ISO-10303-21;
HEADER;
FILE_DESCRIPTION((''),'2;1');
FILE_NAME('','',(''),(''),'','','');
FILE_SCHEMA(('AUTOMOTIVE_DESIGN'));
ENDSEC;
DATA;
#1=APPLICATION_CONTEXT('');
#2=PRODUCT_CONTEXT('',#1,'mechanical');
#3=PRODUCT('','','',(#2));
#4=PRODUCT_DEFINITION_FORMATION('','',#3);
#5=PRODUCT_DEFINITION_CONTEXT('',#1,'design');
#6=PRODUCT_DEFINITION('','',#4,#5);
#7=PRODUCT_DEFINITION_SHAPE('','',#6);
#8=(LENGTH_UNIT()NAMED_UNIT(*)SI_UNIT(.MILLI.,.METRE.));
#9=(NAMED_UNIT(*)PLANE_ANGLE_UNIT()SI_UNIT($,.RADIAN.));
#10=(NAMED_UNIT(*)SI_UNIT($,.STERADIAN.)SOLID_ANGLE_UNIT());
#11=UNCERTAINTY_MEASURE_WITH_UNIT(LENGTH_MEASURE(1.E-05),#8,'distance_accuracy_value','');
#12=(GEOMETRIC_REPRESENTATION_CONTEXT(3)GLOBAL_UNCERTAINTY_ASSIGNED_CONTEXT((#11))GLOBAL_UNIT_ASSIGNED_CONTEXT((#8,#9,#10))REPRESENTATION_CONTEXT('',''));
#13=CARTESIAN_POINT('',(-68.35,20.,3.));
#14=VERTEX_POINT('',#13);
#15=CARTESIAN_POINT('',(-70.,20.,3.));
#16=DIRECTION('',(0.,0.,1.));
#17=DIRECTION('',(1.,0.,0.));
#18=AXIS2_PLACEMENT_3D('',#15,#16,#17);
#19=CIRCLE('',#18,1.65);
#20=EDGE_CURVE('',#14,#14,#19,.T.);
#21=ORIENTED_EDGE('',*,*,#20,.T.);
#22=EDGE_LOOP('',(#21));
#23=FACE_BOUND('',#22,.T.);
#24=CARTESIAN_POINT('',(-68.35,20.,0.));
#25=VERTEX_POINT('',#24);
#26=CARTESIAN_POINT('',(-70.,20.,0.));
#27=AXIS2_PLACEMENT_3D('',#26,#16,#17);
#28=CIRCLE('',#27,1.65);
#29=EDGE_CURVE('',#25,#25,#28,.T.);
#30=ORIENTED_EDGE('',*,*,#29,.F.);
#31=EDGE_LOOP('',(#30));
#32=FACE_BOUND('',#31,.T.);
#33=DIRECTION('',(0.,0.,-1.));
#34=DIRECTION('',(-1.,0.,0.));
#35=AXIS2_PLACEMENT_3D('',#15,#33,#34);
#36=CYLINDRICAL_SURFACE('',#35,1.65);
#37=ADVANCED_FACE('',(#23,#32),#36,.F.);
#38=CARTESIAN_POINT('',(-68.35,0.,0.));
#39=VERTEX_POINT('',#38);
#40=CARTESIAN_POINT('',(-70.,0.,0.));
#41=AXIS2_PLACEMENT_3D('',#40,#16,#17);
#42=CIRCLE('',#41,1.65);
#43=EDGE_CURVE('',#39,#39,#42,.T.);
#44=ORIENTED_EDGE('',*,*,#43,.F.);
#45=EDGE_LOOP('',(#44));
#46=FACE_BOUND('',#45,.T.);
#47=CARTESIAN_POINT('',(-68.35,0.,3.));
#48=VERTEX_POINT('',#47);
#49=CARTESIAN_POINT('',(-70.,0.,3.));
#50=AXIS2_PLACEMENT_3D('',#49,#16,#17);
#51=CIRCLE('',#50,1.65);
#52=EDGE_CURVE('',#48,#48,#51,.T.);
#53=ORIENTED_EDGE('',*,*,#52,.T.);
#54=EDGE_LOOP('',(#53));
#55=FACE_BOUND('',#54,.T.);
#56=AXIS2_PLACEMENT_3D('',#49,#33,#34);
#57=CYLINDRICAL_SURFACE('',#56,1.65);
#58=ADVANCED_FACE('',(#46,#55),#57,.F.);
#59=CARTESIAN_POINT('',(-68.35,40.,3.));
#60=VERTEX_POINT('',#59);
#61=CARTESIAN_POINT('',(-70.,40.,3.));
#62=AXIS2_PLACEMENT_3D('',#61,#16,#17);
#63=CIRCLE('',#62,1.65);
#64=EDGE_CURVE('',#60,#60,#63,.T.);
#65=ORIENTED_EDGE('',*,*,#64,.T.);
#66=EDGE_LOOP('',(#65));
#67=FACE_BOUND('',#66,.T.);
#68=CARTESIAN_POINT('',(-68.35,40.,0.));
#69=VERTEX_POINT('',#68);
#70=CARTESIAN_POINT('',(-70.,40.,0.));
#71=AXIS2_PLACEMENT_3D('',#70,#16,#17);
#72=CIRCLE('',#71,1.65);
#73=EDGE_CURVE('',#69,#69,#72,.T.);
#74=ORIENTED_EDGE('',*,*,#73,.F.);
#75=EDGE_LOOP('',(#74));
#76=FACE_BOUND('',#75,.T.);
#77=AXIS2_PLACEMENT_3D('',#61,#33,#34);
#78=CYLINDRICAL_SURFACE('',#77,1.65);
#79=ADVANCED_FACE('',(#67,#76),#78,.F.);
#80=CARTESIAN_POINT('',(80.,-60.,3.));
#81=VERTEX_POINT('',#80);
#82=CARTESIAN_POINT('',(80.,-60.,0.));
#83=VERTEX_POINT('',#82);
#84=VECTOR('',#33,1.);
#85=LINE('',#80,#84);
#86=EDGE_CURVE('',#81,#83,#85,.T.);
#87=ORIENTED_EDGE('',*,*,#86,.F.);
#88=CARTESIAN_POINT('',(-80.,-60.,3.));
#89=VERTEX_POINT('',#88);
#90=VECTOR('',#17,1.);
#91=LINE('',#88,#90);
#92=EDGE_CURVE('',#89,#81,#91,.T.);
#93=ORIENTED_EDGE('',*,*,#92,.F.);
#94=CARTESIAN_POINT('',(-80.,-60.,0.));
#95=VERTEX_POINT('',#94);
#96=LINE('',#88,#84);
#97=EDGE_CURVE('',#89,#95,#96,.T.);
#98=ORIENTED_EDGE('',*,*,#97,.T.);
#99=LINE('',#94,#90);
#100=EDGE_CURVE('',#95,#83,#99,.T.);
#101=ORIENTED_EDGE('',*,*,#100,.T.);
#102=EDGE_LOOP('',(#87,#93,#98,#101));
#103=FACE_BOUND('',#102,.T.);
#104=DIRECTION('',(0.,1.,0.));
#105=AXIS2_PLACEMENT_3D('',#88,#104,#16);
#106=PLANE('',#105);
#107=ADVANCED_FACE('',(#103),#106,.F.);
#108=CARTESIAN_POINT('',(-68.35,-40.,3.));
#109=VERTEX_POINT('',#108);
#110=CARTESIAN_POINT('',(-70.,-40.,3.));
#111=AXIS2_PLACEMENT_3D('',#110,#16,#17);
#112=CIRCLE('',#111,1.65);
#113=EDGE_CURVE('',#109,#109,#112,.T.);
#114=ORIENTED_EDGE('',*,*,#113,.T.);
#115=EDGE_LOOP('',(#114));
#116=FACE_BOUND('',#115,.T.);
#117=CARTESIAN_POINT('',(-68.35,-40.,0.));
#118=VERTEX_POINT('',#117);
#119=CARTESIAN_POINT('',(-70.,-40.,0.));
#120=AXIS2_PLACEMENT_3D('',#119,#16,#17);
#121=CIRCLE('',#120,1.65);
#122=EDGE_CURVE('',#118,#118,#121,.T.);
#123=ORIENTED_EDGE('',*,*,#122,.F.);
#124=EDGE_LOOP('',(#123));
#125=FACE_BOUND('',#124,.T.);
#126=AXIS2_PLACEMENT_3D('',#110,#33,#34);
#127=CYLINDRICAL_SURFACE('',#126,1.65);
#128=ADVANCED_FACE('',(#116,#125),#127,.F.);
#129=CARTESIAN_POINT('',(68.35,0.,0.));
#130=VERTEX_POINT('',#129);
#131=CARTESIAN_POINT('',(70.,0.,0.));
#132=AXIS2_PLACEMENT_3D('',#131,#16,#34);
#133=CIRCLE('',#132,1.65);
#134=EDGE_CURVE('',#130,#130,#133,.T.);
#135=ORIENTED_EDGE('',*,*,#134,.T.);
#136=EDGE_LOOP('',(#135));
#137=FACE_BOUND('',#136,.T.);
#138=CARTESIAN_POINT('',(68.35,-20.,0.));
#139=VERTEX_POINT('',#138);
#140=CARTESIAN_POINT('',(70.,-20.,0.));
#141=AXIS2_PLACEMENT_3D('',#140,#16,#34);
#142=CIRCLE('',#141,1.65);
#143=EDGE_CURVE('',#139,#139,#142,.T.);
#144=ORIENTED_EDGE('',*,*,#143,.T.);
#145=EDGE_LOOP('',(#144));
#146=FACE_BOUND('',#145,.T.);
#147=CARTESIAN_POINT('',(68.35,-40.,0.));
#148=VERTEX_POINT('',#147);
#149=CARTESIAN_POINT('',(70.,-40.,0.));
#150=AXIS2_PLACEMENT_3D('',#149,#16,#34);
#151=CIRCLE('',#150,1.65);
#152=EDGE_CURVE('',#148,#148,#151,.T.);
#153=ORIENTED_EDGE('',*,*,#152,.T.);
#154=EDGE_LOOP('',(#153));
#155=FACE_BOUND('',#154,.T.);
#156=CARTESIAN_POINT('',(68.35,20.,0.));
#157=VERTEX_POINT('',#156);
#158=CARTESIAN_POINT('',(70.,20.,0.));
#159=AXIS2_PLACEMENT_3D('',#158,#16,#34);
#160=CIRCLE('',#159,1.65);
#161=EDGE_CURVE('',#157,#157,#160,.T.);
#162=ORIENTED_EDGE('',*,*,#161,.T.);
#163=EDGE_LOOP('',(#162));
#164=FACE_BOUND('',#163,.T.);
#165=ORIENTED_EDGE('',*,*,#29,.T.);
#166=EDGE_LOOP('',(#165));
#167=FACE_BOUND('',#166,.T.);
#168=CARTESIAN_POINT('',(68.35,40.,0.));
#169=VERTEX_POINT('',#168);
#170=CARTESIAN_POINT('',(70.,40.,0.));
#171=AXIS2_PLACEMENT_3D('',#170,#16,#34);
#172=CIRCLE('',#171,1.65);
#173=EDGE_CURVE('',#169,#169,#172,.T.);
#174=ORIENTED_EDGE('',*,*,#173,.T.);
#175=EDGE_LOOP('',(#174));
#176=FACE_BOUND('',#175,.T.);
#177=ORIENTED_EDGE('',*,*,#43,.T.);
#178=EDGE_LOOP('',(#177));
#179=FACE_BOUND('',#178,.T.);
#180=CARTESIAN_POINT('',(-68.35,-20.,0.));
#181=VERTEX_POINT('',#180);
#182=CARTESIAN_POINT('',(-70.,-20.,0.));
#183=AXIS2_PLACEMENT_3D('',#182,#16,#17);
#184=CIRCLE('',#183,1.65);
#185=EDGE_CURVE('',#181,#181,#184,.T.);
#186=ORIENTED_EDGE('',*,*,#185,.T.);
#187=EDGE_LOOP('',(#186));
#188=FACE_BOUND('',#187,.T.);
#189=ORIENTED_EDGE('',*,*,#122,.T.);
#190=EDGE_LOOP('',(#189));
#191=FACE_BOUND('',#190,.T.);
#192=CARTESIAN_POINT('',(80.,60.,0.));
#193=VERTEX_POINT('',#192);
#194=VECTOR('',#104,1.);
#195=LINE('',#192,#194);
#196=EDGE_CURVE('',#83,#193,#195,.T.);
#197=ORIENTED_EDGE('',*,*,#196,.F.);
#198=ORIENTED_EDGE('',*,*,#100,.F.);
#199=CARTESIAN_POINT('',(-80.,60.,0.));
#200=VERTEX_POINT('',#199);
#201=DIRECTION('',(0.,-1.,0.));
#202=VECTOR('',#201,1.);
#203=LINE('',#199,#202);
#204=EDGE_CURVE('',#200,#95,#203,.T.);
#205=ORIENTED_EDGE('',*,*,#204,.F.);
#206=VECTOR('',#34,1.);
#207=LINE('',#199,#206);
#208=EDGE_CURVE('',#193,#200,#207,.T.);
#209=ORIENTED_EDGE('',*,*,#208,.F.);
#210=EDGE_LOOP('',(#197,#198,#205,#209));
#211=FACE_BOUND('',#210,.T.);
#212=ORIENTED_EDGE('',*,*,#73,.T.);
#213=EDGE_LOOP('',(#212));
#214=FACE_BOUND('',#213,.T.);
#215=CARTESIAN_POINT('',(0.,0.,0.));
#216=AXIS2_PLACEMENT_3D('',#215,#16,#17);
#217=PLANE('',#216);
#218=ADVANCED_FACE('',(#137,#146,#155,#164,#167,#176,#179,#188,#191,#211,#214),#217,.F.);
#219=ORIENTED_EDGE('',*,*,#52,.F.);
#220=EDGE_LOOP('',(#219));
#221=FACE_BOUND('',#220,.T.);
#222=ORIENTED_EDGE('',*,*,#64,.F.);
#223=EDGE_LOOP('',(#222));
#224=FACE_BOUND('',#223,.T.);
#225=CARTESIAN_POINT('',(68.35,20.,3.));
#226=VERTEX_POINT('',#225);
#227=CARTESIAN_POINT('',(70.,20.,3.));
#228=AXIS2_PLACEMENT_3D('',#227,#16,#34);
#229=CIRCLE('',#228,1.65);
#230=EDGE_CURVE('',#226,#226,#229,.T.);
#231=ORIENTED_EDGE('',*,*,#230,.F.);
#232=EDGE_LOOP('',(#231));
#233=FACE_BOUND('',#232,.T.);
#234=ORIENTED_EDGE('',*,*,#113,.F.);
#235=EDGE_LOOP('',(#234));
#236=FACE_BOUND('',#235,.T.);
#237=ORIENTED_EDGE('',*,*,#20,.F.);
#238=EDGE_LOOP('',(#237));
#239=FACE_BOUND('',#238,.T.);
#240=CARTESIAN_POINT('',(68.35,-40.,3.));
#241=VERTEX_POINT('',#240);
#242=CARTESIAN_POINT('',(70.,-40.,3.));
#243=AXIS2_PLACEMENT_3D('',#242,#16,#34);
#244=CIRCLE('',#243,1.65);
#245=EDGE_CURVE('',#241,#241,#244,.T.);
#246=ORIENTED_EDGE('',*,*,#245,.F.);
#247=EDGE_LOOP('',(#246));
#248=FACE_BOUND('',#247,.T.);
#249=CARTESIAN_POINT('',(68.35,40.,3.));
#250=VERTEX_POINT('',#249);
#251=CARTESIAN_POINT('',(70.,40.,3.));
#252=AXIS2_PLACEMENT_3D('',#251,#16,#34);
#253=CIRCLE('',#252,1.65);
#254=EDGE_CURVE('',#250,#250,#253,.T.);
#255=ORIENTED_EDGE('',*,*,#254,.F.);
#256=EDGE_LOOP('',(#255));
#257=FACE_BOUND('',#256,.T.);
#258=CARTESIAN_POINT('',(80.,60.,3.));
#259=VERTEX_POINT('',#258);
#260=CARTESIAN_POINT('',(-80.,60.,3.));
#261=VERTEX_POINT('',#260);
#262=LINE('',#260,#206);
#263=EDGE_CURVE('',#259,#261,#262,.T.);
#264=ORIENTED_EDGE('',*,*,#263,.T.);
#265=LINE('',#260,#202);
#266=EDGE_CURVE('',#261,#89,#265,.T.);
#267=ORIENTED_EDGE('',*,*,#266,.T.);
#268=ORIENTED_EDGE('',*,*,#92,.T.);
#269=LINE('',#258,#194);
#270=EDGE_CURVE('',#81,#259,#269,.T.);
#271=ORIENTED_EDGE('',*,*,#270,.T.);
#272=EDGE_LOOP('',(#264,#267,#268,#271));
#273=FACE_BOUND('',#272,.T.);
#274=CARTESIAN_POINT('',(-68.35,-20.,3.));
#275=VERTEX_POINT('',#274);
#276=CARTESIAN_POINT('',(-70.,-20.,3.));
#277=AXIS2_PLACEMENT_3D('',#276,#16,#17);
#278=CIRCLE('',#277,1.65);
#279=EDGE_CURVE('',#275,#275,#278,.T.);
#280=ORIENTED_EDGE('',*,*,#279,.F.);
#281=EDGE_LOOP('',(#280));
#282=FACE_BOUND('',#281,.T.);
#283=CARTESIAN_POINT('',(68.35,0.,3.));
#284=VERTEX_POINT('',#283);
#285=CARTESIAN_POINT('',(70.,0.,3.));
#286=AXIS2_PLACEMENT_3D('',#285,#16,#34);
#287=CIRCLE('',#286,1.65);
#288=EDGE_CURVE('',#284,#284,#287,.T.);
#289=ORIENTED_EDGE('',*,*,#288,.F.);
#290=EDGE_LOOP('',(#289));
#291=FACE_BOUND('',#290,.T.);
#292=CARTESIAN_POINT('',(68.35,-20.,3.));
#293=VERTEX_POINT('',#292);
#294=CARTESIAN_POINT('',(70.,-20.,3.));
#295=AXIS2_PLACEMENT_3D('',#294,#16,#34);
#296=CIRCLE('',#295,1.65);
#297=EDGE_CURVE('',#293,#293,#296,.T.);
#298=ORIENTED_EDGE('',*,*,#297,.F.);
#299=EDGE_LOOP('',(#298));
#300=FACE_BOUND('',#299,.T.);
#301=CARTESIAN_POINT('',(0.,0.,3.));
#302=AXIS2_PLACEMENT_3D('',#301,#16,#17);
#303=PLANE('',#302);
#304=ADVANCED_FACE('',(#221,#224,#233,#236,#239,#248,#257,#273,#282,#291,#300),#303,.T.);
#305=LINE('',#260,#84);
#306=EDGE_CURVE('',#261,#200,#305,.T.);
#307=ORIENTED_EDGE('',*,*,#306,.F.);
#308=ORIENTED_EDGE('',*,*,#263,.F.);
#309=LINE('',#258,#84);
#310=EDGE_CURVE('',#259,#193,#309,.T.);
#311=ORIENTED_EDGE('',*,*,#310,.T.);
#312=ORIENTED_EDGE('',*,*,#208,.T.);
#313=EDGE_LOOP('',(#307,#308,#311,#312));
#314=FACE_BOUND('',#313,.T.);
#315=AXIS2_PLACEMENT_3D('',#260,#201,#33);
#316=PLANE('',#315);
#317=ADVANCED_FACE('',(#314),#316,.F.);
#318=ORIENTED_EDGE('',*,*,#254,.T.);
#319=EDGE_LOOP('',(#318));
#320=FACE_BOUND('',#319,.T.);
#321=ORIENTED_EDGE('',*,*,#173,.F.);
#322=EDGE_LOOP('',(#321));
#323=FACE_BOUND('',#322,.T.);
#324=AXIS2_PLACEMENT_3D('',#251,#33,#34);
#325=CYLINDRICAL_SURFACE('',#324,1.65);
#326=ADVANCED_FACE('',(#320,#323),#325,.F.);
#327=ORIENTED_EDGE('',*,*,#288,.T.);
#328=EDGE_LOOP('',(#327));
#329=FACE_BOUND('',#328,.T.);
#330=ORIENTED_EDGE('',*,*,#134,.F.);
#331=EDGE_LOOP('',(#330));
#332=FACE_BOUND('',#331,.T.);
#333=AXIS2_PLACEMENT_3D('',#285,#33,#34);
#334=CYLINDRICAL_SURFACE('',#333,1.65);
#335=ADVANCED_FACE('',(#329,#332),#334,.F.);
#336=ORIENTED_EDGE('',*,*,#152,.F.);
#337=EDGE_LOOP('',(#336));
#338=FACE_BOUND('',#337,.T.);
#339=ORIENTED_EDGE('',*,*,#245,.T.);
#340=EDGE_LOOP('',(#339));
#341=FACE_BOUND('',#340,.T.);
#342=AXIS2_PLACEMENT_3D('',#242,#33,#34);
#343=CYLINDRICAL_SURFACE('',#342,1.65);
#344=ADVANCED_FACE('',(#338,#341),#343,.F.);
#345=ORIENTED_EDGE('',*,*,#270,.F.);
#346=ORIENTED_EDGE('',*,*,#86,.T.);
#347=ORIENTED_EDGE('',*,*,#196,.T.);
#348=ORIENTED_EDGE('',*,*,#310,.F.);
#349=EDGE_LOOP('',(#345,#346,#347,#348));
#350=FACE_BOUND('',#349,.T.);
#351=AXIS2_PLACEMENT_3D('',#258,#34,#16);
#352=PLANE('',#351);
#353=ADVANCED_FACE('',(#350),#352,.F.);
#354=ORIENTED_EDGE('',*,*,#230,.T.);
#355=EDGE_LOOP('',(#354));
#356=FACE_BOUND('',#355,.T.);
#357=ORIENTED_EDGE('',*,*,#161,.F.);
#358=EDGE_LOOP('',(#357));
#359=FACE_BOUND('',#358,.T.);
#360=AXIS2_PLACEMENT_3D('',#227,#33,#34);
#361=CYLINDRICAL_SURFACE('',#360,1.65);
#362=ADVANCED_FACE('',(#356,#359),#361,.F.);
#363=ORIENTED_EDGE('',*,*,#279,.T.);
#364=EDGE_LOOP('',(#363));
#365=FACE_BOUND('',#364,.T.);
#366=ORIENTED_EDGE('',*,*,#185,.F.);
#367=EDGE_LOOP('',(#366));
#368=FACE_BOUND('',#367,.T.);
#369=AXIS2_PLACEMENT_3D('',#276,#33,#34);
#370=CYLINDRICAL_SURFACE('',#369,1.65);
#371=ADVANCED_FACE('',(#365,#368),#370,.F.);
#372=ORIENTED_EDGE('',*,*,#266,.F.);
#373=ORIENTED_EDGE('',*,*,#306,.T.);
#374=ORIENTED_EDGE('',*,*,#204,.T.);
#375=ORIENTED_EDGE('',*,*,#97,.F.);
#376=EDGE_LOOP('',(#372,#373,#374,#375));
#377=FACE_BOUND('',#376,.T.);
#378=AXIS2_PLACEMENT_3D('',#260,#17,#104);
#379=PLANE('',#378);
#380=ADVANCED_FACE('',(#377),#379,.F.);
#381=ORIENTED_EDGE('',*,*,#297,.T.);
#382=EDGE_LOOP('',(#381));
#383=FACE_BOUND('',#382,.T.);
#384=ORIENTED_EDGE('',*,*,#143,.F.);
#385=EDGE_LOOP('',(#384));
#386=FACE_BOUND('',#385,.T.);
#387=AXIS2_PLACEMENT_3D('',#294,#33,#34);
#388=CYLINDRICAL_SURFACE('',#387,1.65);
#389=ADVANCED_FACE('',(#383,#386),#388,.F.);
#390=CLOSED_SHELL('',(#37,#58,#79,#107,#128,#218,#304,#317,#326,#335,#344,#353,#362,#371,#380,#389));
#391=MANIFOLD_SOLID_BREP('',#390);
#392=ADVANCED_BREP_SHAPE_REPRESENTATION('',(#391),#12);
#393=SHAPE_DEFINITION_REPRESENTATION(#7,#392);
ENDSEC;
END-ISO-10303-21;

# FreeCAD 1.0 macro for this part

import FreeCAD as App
import Part
import Sketcher
from FreeCAD import Vector
Q = App.Units.Quantity

doc = App.newDocument("Part")
body = doc.addObject("PartDesign::Body", "Body")

sketch1 = doc.addObject("Sketcher::SketchObject", "Sketch")
body.addObject(sketch1)
sketch1.AttachmentSupport = (doc.XY_Plane, [""])
sketch1.MapMode = "FlatFace"
sketch1.addGeometry([
    Part.LineSegment(Vector(-80, 60, 0), Vector(-80, -60, 0)),
    Part.LineSegment(Vector(-80, -60, 0), Vector(80, -60, 0)),
    Part.LineSegment(Vector(80, -60, 0), Vector(80, 60, 0)),
    Part.LineSegment(Vector(80, 60, 0), Vector(-80, 60, 0)),
    Part.Circle(Vector(-70, -40, 0), Vector(0, 0, 1), 1.6),
    Part.Circle(Vector(-70, -20, 0), Vector(0, 0, 1), 1.6),
    Part.Circle(Vector(70, -40, 0), Vector(0, 0, 1), 1.6),
    Part.Circle(Vector(70, -20, 0), Vector(0, 0, 1), 1.6),
    Part.Circle(Vector(-70, 0, 0), Vector(0, 0, 1), 1.6),
    Part.Circle(Vector(-70, 20, 0), Vector(0, 0, 1), 1.6),
    Part.Circle(Vector(-70, 40, 0), Vector(0, 0, 1), 1.6),
    Part.Circle(Vector(70, 0, 0), Vector(0, 0, 1), 1.6),
    Part.Circle(Vector(70, 20, 0), Vector(0, 0, 1), 1.6),
    Part.Circle(Vector(70, 40, 0), Vector(0, 0, 1), 1.6),
], False)
sketch1.addConstraint([
    Sketcher.Constraint("Coincident", 0, 2, 1, 1),
    Sketcher.Constraint("Coincident", 1, 2, 2, 1),
    Sketcher.Constraint("Coincident", 2, 2, 3, 1),
    Sketcher.Constraint("Coincident", 3, 2, 0, 1),
    Sketcher.Constraint("Vertical", 0),
    Sketcher.Constraint("Horizontal", 1),
    Sketcher.Constraint("Vertical", 2),
    Sketcher.Constraint("Horizontal", 3),
    Sketcher.Constraint("Equal", 4, 5),
    Sketcher.Constraint("Equal", 5, 6),
    Sketcher.Constraint("Equal", 6, 7),
    Sketcher.Constraint("Equal", 7, 8),
    Sketcher.Constraint("Equal", 8, 9),
    Sketcher.Constraint("Equal", 9, 10),
    Sketcher.Constraint("Equal", 10, 11),
    Sketcher.Constraint("Equal", 11, 12),
    Sketcher.Constraint("Equal", 12, 13),
    Sketcher.Constraint("Symmetric", 7, 3, 9, 3, -1, 1),
    Sketcher.Constraint("Symmetric", 6, 3, 10, 3, -1, 1),
    Sketcher.Constraint("Symmetric", 8, 3, 11, 3, -1, 1),
    Sketcher.Constraint("Symmetric", 5, 3, 12, 3, -1, 1),
    Sketcher.Constraint("Symmetric", 4, 3, 13, 3, -1, 1),
    Sketcher.Constraint("Symmetric", 0, 2, 2, 2, -1, 1),
    Sketcher.Constraint("Symmetric", 4, 3, 6, 3, -2),
    Sketcher.Constraint("Symmetric", 5, 3, 7, 3, -2),
    Sketcher.Constraint("PointOnObject", 8, 3, -1),
    Sketcher.Constraint("Vertical", 4, 3, 5, 3),
    Sketcher.Constraint("Vertical", 5, 3, 8, 3),
    Sketcher.Constraint("Diameter", 4, Q("3.3 mm")),
    Sketcher.Constraint("DistanceX", 1, 1, 1, 2, Q("160 mm")),
    Sketcher.Constraint("DistanceY", 0, 2, 0, 1, Q("120 mm")),
    Sketcher.Constraint("DistanceX", 4, 3, -1, 1, Q("70 mm")),
    Sketcher.Constraint("DistanceY", 4, 3, -1, 1, Q("40 mm")),
    Sketcher.Constraint("DistanceY", 5, 3, -1, 1, Q("20 mm")),
])
pad1 = doc.addObject("PartDesign::Pad", "Pad")
body.addObject(pad1)
pad1.Profile = sketch1
pad1.Length = 3

doc.recompute()
